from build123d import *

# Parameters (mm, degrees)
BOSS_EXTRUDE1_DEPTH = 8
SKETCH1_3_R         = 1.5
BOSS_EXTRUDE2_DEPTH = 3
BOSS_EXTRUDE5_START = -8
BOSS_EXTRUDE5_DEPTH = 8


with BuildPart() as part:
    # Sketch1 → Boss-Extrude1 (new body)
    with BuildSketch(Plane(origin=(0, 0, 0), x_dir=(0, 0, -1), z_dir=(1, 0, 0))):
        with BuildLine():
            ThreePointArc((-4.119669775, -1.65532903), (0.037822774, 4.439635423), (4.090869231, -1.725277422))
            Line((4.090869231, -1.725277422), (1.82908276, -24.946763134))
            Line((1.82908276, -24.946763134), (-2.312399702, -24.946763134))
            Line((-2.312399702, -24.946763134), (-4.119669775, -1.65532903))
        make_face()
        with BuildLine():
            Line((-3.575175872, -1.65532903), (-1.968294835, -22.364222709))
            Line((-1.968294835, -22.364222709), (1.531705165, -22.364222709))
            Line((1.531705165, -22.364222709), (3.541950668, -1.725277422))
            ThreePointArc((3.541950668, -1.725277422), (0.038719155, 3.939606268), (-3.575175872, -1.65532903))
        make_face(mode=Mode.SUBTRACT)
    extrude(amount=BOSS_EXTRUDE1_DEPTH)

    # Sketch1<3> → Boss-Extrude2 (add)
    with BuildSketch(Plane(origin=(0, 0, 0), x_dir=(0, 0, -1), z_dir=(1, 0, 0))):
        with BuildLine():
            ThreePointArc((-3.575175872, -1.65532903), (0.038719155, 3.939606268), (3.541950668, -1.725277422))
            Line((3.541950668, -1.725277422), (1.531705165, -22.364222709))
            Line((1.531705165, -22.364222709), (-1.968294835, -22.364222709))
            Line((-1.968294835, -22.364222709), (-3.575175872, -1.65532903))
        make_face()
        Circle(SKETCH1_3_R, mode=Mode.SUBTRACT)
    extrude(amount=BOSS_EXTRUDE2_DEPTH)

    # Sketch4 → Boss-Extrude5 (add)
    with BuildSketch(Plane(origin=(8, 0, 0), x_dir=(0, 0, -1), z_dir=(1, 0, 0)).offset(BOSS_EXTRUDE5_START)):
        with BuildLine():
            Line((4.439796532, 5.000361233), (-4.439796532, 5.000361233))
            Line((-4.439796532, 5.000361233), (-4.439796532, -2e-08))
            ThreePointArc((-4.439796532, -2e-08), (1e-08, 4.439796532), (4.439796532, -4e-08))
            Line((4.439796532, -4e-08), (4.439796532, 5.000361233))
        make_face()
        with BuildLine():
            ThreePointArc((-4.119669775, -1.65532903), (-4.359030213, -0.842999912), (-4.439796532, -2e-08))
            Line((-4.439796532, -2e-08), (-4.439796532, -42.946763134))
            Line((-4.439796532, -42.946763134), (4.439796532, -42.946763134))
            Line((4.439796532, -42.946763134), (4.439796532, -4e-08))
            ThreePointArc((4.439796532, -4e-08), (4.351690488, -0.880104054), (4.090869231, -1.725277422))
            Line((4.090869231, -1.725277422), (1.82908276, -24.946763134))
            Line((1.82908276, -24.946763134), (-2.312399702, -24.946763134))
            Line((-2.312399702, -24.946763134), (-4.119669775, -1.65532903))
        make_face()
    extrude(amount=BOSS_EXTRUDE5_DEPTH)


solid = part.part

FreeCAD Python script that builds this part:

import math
import FreeCAD as App
import Part
import Sketcher

V = App.Vector
Q = App.Units.Quantity

doc = App.newDocument("Part")
params = doc.addObject("Spreadsheet::Sheet", "Params")
for row, (alias, value) in enumerate([
    ("sketch1_height", "3.5 mm"),
    ("pad1_length", "8 mm"),
    ("sketch2_diameter", "3 mm"),
    ("sketch2_height", "3.5 mm"),
    ("pad2_length", "3 mm"),
    ("pad3_length", "8 mm"),
], start=1):
    params.set(f"A{row}", alias)
    params.set(f"B{row}", "=" + value)
    params.setAlias(f"B{row}", alias)

body = doc.addObject("PartDesign::Body", "Body")

sketch1 = body.newObject("Sketcher::SketchObject", "Sketch")
sketch1.AttachmentSupport = (doc.getObject("YZ_Plane"), [""])
sketch1.MapMode = "FlatFace"
sketch1.addGeometry([
    Part.ArcOfCircle(Part.Circle(V(0, 0, 0), V(0, 0, 1), 4.439797), math.radians(-112.86703), math.radians(111.890809)),
    Part.LineSegment(V(-1.655329, 4.11967, 0), V(-24.946763, 2.3124, 0)),
    Part.LineSegment(V(-24.946763, 2.3124, 0), V(-24.946763, -1.829083, 0)),
    Part.LineSegment(V(-24.946763, -1.829083, 0), V(-1.725277, -4.090869, 0)),
    Part.ArcOfCircle(Part.Circle(V(0, 0, 0), V(0, 0, 1), 3.939797), math.radians(-115.970625), math.radians(114.844435)),
    Part.LineSegment(V(-1.725277, -3.541951, 0), V(-22.364223, -1.531705, 0)),
    Part.LineSegment(V(-22.364223, -1.531705, 0), V(-22.364223, 1.968295, 0)),
    Part.LineSegment(V(-22.364223, 1.968295, 0), V(-1.655329, 3.575176, 0)),
], False)
sketch1.addConstraint([
    Sketcher.Constraint("Coincident", 0, 2, 1, 1),
    Sketcher.Constraint("Coincident", 1, 2, 2, 1),
    Sketcher.Constraint("Coincident", 2, 2, 3, 1),
    Sketcher.Constraint("Coincident", 3, 2, 0, 1),
    Sketcher.Constraint("Coincident", 4, 1, 5, 1),
    Sketcher.Constraint("Coincident", 5, 2, 6, 1),
    Sketcher.Constraint("Coincident", 6, 2, 7, 1),
    Sketcher.Constraint("Coincident", 7, 2, 4, 2),
    Sketcher.Constraint("Vertical", 2),
    Sketcher.Constraint("Vertical", 6),
    Sketcher.Constraint("Coincident", 0, 3, -1, 1),
    Sketcher.Constraint("Coincident", 4, 3, -1, 1),
    Sketcher.Constraint("DistanceY", 6, 1, 6, 2, Q("3.5 mm")),
    Sketcher.Constraint("Radius", 0, Q("4.439797 mm")),
    Sketcher.Constraint("Radius", 4, Q("3.939797 mm")),
    Sketcher.Constraint("DistanceY", -1, 1, 1, 2, Q("2.3124 mm")),
    Sketcher.Constraint("DistanceY", 2, 2, 2, 1, Q("4.141482 mm")),
    Sketcher.Constraint("DistanceX", 0, 2, -1, 1, Q("1.655329 mm")),
    Sketcher.Constraint("DistanceY", 3, 2, -1, 1, Q("4.090869 mm")),
    Sketcher.Constraint("DistanceY", 4, 1, -1, 1, Q("3.541951 mm")),
    Sketcher.Constraint("DistanceX", 7, 2, -1, 1, Q("1.655329 mm")),
    Sketcher.Constraint("DistanceX", 2, 2, 5, 2, Q("2.58254 mm")),
    Sketcher.Constraint("Distance", 1, Q("23.361445 mm")),
    Sketcher.Constraint("Distance", 5, Q("20.736614 mm")),
])
sketch1.setExpression("Constraints[12]", "Params.sketch1_height")
pad1 = body.newObject("PartDesign::Pad", "Pad")
pad1.Profile = sketch1
pad1.setExpression("Length", "Params.pad1_length")

sketch2 = body.newObject("Sketcher::SketchObject", "Sketch001")
sketch2.AttachmentSupport = (doc.getObject("YZ_Plane"), [""])
sketch2.MapMode = "FlatFace"
sketch2.addGeometry([
    Part.ArcOfCircle(Part.Circle(V(0, 0, 0), V(0, 0, 1), 3.9), math.radians(-116), math.radians(115)),
    Part.LineSegment(V(-1.7, 3.6, 0), V(-22.4, 2, 0)),
    Part.LineSegment(V(-22.4, 2, 0), V(-22.4, -1.5, 0)),
    Part.LineSegment(V(-22.4, -1.5, 0), V(-1.7, -3.5, 0)),
    Part.Circle(V(0, 0, 0), V(0, 0, 1), 1.5),
], False)
sketch2.addConstraint([
    Sketcher.Constraint("Coincident", 0, 2, 1, 1),
    Sketcher.Constraint("Coincident", 1, 2, 2, 1),
    Sketcher.Constraint("Coincident", 2, 2, 3, 1),
    Sketcher.Constraint("Coincident", 3, 2, 0, 1),
    Sketcher.Constraint("Vertical", 2),
    Sketcher.Constraint("Coincident", 0, 3, -1, 1),
    Sketcher.Constraint("Coincident", 4, 3, -1, 1),
    Sketcher.Constraint("Diameter", 4, Q("3 mm")),
    Sketcher.Constraint("DistanceY", 2, 2, 2, 1, Q("3.5 mm")),
    Sketcher.Constraint("Radius", 0, Q("3.939797 mm")),
    Sketcher.Constraint("DistanceX", 0, 2, -1, 1, Q("1.655329 mm")),
    Sketcher.Constraint("DistanceY", 3, 2, -1, 1, Q("3.541951 mm")),
    Sketcher.Constraint("DistanceY", 1, 2, 0, 2, Q("1.606881 mm")),
    Sketcher.Constraint("Distance", 1, Q("20.771142 mm")),
])
sketch2.setExpression("Constraints[7]", "Params.sketch2_diameter")
sketch2.setExpression("Constraints[8]", "Params.sketch2_height")
pad2 = body.newObject("PartDesign::Pad", "Pad001")
pad2.Profile = sketch2
pad2.setExpression("Length", "Params.pad2_length")

sketch3 = body.newObject("Sketcher::SketchObject", "Sketch002")
sketch3.AttachmentSupport = (doc.getObject("YZ_Plane"), [""])
sketch3.MapMode = "FlatFace"
sketch3.addGeometry([
    Part.LineSegment(V(5, -4.4, 0), V(5, 4.4, 0)),
    Part.LineSegment(V(5, 4.4, 0), V(0, 4.4, 0)),
    Part.ArcOfCircle(Part.Circle(V(0, 0, 0), V(0, 0, 1), 4.4), math.radians(-90), math.radians(90)),
    Part.LineSegment(V(0, -4.4, 0), V(5, -4.4, 0)),
    Part.ArcOfCircle(Part.Circle(V(0, 0, 0), V(0, 0, 1), 4.4), math.radians(90), math.radians(112)),
    Part.LineSegment(V(0, 4.4, 0), V(-42.9, 4.4, 0)),
    Part.LineSegment(V(-42.9, 4.4, 0), V(-42.9, -4.4, 0)),
    Part.LineSegment(V(-42.9, -4.4, 0), V(0, -4.4, 0)),
    Part.ArcOfCircle(Part.Circle(V(0, 0, 0), V(0, 0, 1), 4.4), math.radians(-113), math.radians(-90)),
    Part.LineSegment(V(-1.7, -4.1, 0), V(-24.9, -1.8, 0)),
    Part.LineSegment(V(-24.9, -1.8, 0), V(-24.9, 2.3, 0)),
    Part.LineSegment(V(-24.9, 2.3, 0), V(-1.7, 4.1, 0)),
], False)
sketch3.addConstraint([
    Sketcher.Constraint("Coincident", 0, 2, 1, 1),
    Sketcher.Constraint("Tangent", 1, 2, 2, 2),
    Sketcher.Constraint("Tangent", 2, 1, 3, 1),
    Sketcher.Constraint("Coincident", 3, 2, 0, 1),
    Sketcher.Constraint("Tangent", 4, 1, 5, 1),
    Sketcher.Constraint("Coincident", 5, 2, 6, 1),
    Sketcher.Constraint("Coincident", 6, 2, 7, 1),
    Sketcher.Constraint("Tangent", 7, 2, 8, 2),
    Sketcher.Constraint("Coincident", 8, 1, 9, 1),
    Sketcher.Constraint("Coincident", 9, 2, 10, 1),
    Sketcher.Constraint("Coincident", 10, 2, 11, 1),
    Sketcher.Constraint("Coincident", 11, 2, 4, 2),
    Sketcher.Constraint("Vertical", 0),
    Sketcher.Constraint("Horizontal", 1),
    Sketcher.Constraint("Horizontal", 3),
    Sketcher.Constraint("Horizontal", 5),
    Sketcher.Constraint("Vertical", 6),
    Sketcher.Constraint("Horizontal", 7),
    Sketcher.Constraint("Vertical", 10),
    Sketcher.Constraint("Coincident", 2, 3, -1, 1),
    Sketcher.Constraint("Coincident", 4, 3, -1, 1),
    Sketcher.Constraint("Coincident", 8, 3, -1, 1),
    Sketcher.Constraint("Equal", 2, 4),
    Sketcher.Constraint("Equal", 4, 8),
    Sketcher.Constraint("DistanceX", 6, 2, 9, 2, Q("18 mm")),
    Sketcher.Constraint("Radius", 2, Q("4.439797 mm")),
    Sketcher.Constraint("DistanceX", 1, 2, 1, 1, Q("5.000361 mm")),
    Sketcher.Constraint("DistanceY", -1, 1, 10, 2, Q("2.3124 mm")),
    Sketcher.Constraint("DistanceX", 5, 2, 5, 1, Q("42.946763 mm")),
    Sketcher.Constraint("DistanceY", 10, 1, 10, 2, Q("4.141482 mm")),
    Sketcher.Constraint("DistanceY", 8, 1, -1, 1, Q("4.090869 mm")),
    Sketcher.Constraint("DistanceX", 11, 2, -1, 1, Q("1.655329 mm")),
])
pad3 = body.newObject("PartDesign::Pad", "Pad002")
pad3.Profile = sketch3
pad3.setExpression("Length", "Params.pad3_length")

doc.recompute()
